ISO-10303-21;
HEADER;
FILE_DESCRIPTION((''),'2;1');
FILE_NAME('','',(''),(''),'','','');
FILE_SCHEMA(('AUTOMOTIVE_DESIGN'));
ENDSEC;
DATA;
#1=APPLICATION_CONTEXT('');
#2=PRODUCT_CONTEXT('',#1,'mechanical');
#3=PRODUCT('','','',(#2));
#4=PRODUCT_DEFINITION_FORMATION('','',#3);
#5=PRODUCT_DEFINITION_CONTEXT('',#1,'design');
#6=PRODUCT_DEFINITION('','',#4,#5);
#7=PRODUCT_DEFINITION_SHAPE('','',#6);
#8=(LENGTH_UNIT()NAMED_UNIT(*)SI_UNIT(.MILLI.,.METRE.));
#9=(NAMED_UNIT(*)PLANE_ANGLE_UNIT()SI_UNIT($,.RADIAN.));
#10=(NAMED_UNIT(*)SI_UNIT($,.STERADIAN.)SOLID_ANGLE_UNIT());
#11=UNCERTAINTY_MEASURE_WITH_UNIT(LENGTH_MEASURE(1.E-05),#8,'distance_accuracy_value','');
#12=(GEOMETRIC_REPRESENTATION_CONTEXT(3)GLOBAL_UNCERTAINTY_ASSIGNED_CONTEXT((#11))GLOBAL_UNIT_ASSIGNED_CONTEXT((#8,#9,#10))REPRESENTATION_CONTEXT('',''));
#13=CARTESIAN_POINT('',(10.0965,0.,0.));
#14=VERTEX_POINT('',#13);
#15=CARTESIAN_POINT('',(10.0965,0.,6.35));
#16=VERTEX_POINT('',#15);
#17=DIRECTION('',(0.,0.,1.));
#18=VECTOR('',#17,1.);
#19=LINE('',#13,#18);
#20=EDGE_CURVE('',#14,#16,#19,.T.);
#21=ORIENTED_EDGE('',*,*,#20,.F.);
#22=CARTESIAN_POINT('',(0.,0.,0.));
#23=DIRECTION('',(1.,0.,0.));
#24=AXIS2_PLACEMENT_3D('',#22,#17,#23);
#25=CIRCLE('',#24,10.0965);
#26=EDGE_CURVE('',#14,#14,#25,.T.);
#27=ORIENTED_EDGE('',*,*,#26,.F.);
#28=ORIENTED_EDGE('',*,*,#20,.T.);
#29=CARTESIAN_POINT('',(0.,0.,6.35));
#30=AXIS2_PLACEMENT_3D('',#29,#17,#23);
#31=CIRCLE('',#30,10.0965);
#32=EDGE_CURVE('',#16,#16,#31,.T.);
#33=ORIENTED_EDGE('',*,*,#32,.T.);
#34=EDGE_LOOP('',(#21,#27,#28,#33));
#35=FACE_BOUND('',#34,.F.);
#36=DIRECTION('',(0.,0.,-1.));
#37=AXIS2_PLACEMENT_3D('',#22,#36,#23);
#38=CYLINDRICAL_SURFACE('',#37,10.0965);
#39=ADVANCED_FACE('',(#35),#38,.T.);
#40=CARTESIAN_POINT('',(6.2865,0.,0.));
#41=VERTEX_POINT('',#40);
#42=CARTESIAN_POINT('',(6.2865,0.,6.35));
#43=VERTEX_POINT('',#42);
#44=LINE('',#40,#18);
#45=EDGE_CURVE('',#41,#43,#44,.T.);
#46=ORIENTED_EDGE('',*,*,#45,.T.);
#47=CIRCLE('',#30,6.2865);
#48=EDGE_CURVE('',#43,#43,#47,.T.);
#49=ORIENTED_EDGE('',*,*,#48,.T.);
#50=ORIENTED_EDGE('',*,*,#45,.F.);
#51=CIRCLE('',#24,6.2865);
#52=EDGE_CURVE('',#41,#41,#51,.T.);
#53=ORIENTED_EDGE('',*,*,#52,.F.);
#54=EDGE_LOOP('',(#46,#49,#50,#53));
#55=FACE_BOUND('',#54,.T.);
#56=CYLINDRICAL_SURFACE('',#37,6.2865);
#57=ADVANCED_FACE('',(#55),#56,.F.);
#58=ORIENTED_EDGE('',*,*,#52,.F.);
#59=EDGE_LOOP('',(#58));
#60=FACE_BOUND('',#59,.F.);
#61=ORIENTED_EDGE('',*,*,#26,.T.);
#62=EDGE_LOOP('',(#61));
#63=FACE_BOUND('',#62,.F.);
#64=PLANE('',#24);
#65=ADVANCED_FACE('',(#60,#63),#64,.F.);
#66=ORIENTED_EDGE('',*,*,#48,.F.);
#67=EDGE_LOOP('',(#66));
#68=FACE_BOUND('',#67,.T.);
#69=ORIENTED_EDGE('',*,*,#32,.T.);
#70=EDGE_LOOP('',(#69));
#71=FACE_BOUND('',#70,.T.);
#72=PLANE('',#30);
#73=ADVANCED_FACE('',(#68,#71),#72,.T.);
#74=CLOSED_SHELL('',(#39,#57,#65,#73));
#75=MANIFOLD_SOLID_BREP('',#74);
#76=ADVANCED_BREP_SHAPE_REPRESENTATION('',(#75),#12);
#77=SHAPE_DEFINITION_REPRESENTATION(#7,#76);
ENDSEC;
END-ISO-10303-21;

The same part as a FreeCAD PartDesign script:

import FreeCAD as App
import Part
import Sketcher
from FreeCAD import Vector
Q = App.Units.Quantity

doc = App.newDocument("Part")
params = doc.addObject("Spreadsheet::Sheet", "Params")
for row, (alias, value) in enumerate([
    ("sketch1_diameter", "0.795 in"),
    ("sketch1_diameter2", "0.495 in"),
    ("pad1_length", "0.25 in"),
], start=1):
    params.set(f"A{row}", alias)
    params.set(f"B{row}", "=" + value)
    params.setAlias(f"B{row}", alias)

body = doc.addObject("PartDesign::Body", "Body")

sketch1 = body.newObject("Sketcher::SketchObject", "Sketch")
sketch1.AttachmentSupport = (doc.getObject("XY_Plane"), [""])
sketch1.MapMode = "FlatFace"
sketch1.addGeometry([
    Part.Circle(Vector(0, 0, 0), Vector(0, 0, 1), 10),
    Part.Circle(Vector(0, 0, 0), Vector(0, 0, 1), 6),
], False)
sketch1.addConstraint([
    Sketcher.Constraint("Coincident", 0, 3, -1, 1),
    Sketcher.Constraint("Coincident", 1, 3, -1, 1),
    Sketcher.Constraint("Diameter", 0, Q("0.795 in")),
    Sketcher.Constraint("Diameter", 1, Q("0.495 in")),
])
sketch1.setExpression("Constraints[2]", "Params.sketch1_diameter")
sketch1.setExpression("Constraints[3]", "Params.sketch1_diameter2")
pad1 = body.newObject("PartDesign::Pad", "Pad")
pad1.Profile = sketch1
pad1.setExpression("Length", "Params.pad1_length")

doc.recompute()
